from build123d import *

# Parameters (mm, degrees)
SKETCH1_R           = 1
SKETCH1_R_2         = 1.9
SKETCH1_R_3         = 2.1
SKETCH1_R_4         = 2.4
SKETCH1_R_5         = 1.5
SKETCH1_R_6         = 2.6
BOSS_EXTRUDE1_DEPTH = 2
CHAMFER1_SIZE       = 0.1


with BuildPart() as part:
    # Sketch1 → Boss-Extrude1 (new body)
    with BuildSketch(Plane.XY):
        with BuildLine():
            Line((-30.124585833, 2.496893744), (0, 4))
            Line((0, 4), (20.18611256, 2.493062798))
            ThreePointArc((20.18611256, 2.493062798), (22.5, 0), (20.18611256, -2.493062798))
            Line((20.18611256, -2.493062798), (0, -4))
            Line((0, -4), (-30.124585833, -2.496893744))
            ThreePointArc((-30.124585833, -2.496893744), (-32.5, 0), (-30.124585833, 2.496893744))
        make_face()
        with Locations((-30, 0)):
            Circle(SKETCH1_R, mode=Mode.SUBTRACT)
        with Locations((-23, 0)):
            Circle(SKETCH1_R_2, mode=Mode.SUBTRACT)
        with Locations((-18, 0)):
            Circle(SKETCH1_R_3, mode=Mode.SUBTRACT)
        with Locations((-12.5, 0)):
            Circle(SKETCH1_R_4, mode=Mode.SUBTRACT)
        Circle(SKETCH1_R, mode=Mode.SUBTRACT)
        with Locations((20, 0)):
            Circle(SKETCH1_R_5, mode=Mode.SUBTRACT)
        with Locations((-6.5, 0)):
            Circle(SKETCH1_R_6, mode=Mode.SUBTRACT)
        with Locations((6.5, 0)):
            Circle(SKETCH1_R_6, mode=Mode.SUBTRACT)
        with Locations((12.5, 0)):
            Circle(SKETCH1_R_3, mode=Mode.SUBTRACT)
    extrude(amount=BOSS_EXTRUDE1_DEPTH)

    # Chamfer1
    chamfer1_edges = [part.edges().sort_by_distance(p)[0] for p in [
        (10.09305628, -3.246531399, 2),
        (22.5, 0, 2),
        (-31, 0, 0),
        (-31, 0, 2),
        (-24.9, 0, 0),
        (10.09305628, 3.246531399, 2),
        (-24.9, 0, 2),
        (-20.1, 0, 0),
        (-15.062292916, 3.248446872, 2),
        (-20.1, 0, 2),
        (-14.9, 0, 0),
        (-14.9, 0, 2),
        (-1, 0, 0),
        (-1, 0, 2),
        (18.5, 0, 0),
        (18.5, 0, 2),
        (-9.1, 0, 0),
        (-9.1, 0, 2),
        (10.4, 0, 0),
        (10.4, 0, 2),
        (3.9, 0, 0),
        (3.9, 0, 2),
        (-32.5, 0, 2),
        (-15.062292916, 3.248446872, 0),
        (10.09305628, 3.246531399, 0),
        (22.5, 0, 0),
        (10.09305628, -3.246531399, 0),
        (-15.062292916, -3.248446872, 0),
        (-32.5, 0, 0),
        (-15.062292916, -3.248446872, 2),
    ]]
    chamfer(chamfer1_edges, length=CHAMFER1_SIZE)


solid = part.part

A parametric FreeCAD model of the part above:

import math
import FreeCAD as App
import Part
import Sketcher
Q = App.Units.Quantity


def edges_at(feature, points):
    """Names of the edges that pass closest to the given points."""
    edges = feature.Shape.Edges
    near = lambda p: min(range(len(edges)), key=lambda i: edges[i].distToShape(Part.Vertex(*p))[0])
    return sorted({f"Edge{near(p) + 1}" for p in points})

doc = App.newDocument("Part")
body = doc.addObject("PartDesign::Body", "Body")

# Sketch on XY plane
sketch1 = body.newObject("Sketcher::SketchObject", "Sketch")
sketch1.AttachmentSupport = (doc.getObject("XY_Plane"), [""])
sketch1.MapMode = "FlatFace"
sketch1.addGeometry(Part.LineSegment(App.Vector(0, 4, 0), App.Vector(-30.1, 2.5, 0)), False)
sketch1.addGeometry(Part.ArcOfCircle(Part.Circle(App.Vector(-30, 0, 0), App.Vector(0, 0, 1), 2.5), math.radians(93), math.radians(267)), False)
sketch1.addGeometry(Part.LineSegment(App.Vector(-30.1, -2.5, 0), App.Vector(0, -4, 0)), False)
sketch1.addGeometry(Part.LineSegment(App.Vector(0, -4, 0), App.Vector(20.2, -2.5, 0)), False)
sketch1.addGeometry(Part.ArcOfCircle(Part.Circle(App.Vector(20, 0, 0), App.Vector(0, 0, 1), 2.5), math.radians(-86), math.radians(86)), False)
sketch1.addGeometry(Part.LineSegment(App.Vector(20.2, 2.5, 0), App.Vector(0, 4, 0)), False)
sketch1.addGeometry(Part.Circle(App.Vector(20, 0, 0), App.Vector(0, 0, 1), 1.5), False)
sketch1.addGeometry(Part.Circle(App.Vector(0, 0, 0), App.Vector(0, 0, 1), 1), False)
sketch1.addGeometry(Part.Circle(App.Vector(-23, 0, 0), App.Vector(0, 0, 1), 1.9), False)
sketch1.addGeometry(Part.Circle(App.Vector(-30, 0, 0), App.Vector(0, 0, 1), 1), False)
sketch1.addGeometry(Part.Circle(App.Vector(12.5, 0, 0), App.Vector(0, 0, 1), 2.1), False)
sketch1.addGeometry(Part.Circle(App.Vector(6.5, 0, 0), App.Vector(0, 0, 1), 2.6), False)
sketch1.addGeometry(Part.Circle(App.Vector(-6.5, 0, 0), App.Vector(0, 0, 1), 2.6), False)
sketch1.addGeometry(Part.Circle(App.Vector(-12.5, 0, 0), App.Vector(0, 0, 1), 2.4), False)
sketch1.addGeometry(Part.Circle(App.Vector(-18, 0, 0), App.Vector(0, 0, 1), 2.1), False)
sketch1.addConstraint(Sketcher.Constraint("Tangent", 0, 2, 1, 1))
sketch1.addConstraint(Sketcher.Constraint("Tangent", 1, 2, 2, 1))
sketch1.addConstraint(Sketcher.Constraint("Coincident", 2, 2, 3, 1))
sketch1.addConstraint(Sketcher.Constraint("Tangent", 3, 2, 4, 1))
sketch1.addConstraint(Sketcher.Constraint("Tangent", 4, 2, 5, 1))
sketch1.addConstraint(Sketcher.Constraint("Coincident", 5, 2, 0, 1))
sketch1.addConstraint(Sketcher.Constraint("Coincident", 7, 3, -1, 1))
sketch1.addConstraint(Sketcher.Constraint("Coincident", 6, 3, 4, 3))
sketch1.addConstraint(Sketcher.Constraint("Coincident", 9, 3, 1, 3))
sketch1.addConstraint(Sketcher.Constraint("Equal", 1, 4))
sketch1.addConstraint(Sketcher.Constraint("Equal", 7, 9))
sketch1.addConstraint(Sketcher.Constraint("Equal", 11, 12))
sketch1.addConstraint(Sketcher.Constraint("Equal", 10, 14))
sketch1.addConstraint(Sketcher.Constraint("Symmetric", 11, 3, 12, 3, -1, 1))
sketch1.addConstraint(Sketcher.Constraint("Symmetric", 10, 3, 13, 3, -1, 1))
sketch1.addConstraint(Sketcher.Constraint("Symmetric", 2, 2, 5, 2, -1, 1))
sketch1.addConstraint(Sketcher.Constraint("Symmetric", 0, 2, 1, 2, -1))
sketch1.addConstraint(Sketcher.Constraint("PointOnObject", 4, 3, -1))
sketch1.addConstraint(Sketcher.Constraint("PointOnObject", 8, 3, -1))
sketch1.addConstraint(Sketcher.Constraint("PointOnObject", 10, 3, -1))
sketch1.addConstraint(Sketcher.Constraint("PointOnObject", 11, 3, -1))
sketch1.addConstraint(Sketcher.Constraint("PointOnObject", 14, 3, -1))
sketch1.addConstraint(Sketcher.Constraint("Diameter", 6, Q("3 mm")))
sketch1.addConstraint(Sketcher.Constraint("Diameter", 7, Q("2 mm")))
sketch1.addConstraint(Sketcher.Constraint("Diameter", 8, Q("3.8 mm")))
sketch1.addConstraint(Sketcher.Constraint("Diameter", 10, Q("4.2 mm")))
sketch1.addConstraint(Sketcher.Constraint("Diameter", 11, Q("5.2 mm")))
sketch1.addConstraint(Sketcher.Constraint("Diameter", 13, Q("4.8 mm")))
sketch1.addConstraint(Sketcher.Constraint("Radius", 1, Q("2.5 mm")))
sketch1.addConstraint(Sketcher.Constraint("DistanceX", 1, 3, -1, 1, Q("30 mm")))
sketch1.addConstraint(Sketcher.Constraint("DistanceX", -1, 1, 4, 3, Q("20 mm")))
sketch1.addConstraint(Sketcher.Constraint("DistanceX", 8, 3, -1, 1, Q("23 mm")))
sketch1.addConstraint(Sketcher.Constraint("DistanceX", 14, 3, -1, 1, Q("18 mm")))
sketch1.addConstraint(Sketcher.Constraint("DistanceY", 2, 2, -1, 1, Q("4 mm")))
sketch1.addConstraint(Sketcher.Constraint("DistanceX", 11, 3, 10, 3, Q("6 mm")))
sketch1.addConstraint(Sketcher.Constraint("DistanceX", 12, 3, 11, 3, Q("13 mm")))
pad1 = body.newObject("PartDesign::Pad", "Pad")
pad1.Profile = sketch1
pad1.Length = 2
doc.recompute()

chamfer = body.newObject("PartDesign::Chamfer", "Chamfer")
chamfer.Base = (pad1, edges_at(pad1, [
    (10.093, -3.247, 2),
    (22.5, 0, 2),
    (-31, 0, 0),
    (-31, 0, 2),
    (-24.9, 0, 0),
    (10.093, 3.247, 2),
    (-24.9, 0, 2),
    (-20.1, 0, 0),
    (-15.062, 3.248, 2),
    (-20.1, 0, 2),
    (-14.9, 0, 0),
    (-14.9, 0, 2),
    (-1, 0, 0),
    (-1, 0, 2),
    (18.5, 0, 0),
    (18.5, 0, 2),
    (-9.1, 0, 0),
    (-9.1, 0, 2),
    (10.4, 0, 0),
    (10.4, 0, 2),
    (3.9, 0, 0),
    (3.9, 0, 2),
    (-32.5, 0, 2),
    (-15.062, 3.248, 0),
    (10.093, 3.247, 0),
    (22.5, 0, 0),
    (10.093, -3.247, 0),
    (-15.062, -3.248, 0),
    (-32.5, 0, 0),
    (-15.062, -3.248, 2),
]))
chamfer.Size = 0.1

doc.recompute()
